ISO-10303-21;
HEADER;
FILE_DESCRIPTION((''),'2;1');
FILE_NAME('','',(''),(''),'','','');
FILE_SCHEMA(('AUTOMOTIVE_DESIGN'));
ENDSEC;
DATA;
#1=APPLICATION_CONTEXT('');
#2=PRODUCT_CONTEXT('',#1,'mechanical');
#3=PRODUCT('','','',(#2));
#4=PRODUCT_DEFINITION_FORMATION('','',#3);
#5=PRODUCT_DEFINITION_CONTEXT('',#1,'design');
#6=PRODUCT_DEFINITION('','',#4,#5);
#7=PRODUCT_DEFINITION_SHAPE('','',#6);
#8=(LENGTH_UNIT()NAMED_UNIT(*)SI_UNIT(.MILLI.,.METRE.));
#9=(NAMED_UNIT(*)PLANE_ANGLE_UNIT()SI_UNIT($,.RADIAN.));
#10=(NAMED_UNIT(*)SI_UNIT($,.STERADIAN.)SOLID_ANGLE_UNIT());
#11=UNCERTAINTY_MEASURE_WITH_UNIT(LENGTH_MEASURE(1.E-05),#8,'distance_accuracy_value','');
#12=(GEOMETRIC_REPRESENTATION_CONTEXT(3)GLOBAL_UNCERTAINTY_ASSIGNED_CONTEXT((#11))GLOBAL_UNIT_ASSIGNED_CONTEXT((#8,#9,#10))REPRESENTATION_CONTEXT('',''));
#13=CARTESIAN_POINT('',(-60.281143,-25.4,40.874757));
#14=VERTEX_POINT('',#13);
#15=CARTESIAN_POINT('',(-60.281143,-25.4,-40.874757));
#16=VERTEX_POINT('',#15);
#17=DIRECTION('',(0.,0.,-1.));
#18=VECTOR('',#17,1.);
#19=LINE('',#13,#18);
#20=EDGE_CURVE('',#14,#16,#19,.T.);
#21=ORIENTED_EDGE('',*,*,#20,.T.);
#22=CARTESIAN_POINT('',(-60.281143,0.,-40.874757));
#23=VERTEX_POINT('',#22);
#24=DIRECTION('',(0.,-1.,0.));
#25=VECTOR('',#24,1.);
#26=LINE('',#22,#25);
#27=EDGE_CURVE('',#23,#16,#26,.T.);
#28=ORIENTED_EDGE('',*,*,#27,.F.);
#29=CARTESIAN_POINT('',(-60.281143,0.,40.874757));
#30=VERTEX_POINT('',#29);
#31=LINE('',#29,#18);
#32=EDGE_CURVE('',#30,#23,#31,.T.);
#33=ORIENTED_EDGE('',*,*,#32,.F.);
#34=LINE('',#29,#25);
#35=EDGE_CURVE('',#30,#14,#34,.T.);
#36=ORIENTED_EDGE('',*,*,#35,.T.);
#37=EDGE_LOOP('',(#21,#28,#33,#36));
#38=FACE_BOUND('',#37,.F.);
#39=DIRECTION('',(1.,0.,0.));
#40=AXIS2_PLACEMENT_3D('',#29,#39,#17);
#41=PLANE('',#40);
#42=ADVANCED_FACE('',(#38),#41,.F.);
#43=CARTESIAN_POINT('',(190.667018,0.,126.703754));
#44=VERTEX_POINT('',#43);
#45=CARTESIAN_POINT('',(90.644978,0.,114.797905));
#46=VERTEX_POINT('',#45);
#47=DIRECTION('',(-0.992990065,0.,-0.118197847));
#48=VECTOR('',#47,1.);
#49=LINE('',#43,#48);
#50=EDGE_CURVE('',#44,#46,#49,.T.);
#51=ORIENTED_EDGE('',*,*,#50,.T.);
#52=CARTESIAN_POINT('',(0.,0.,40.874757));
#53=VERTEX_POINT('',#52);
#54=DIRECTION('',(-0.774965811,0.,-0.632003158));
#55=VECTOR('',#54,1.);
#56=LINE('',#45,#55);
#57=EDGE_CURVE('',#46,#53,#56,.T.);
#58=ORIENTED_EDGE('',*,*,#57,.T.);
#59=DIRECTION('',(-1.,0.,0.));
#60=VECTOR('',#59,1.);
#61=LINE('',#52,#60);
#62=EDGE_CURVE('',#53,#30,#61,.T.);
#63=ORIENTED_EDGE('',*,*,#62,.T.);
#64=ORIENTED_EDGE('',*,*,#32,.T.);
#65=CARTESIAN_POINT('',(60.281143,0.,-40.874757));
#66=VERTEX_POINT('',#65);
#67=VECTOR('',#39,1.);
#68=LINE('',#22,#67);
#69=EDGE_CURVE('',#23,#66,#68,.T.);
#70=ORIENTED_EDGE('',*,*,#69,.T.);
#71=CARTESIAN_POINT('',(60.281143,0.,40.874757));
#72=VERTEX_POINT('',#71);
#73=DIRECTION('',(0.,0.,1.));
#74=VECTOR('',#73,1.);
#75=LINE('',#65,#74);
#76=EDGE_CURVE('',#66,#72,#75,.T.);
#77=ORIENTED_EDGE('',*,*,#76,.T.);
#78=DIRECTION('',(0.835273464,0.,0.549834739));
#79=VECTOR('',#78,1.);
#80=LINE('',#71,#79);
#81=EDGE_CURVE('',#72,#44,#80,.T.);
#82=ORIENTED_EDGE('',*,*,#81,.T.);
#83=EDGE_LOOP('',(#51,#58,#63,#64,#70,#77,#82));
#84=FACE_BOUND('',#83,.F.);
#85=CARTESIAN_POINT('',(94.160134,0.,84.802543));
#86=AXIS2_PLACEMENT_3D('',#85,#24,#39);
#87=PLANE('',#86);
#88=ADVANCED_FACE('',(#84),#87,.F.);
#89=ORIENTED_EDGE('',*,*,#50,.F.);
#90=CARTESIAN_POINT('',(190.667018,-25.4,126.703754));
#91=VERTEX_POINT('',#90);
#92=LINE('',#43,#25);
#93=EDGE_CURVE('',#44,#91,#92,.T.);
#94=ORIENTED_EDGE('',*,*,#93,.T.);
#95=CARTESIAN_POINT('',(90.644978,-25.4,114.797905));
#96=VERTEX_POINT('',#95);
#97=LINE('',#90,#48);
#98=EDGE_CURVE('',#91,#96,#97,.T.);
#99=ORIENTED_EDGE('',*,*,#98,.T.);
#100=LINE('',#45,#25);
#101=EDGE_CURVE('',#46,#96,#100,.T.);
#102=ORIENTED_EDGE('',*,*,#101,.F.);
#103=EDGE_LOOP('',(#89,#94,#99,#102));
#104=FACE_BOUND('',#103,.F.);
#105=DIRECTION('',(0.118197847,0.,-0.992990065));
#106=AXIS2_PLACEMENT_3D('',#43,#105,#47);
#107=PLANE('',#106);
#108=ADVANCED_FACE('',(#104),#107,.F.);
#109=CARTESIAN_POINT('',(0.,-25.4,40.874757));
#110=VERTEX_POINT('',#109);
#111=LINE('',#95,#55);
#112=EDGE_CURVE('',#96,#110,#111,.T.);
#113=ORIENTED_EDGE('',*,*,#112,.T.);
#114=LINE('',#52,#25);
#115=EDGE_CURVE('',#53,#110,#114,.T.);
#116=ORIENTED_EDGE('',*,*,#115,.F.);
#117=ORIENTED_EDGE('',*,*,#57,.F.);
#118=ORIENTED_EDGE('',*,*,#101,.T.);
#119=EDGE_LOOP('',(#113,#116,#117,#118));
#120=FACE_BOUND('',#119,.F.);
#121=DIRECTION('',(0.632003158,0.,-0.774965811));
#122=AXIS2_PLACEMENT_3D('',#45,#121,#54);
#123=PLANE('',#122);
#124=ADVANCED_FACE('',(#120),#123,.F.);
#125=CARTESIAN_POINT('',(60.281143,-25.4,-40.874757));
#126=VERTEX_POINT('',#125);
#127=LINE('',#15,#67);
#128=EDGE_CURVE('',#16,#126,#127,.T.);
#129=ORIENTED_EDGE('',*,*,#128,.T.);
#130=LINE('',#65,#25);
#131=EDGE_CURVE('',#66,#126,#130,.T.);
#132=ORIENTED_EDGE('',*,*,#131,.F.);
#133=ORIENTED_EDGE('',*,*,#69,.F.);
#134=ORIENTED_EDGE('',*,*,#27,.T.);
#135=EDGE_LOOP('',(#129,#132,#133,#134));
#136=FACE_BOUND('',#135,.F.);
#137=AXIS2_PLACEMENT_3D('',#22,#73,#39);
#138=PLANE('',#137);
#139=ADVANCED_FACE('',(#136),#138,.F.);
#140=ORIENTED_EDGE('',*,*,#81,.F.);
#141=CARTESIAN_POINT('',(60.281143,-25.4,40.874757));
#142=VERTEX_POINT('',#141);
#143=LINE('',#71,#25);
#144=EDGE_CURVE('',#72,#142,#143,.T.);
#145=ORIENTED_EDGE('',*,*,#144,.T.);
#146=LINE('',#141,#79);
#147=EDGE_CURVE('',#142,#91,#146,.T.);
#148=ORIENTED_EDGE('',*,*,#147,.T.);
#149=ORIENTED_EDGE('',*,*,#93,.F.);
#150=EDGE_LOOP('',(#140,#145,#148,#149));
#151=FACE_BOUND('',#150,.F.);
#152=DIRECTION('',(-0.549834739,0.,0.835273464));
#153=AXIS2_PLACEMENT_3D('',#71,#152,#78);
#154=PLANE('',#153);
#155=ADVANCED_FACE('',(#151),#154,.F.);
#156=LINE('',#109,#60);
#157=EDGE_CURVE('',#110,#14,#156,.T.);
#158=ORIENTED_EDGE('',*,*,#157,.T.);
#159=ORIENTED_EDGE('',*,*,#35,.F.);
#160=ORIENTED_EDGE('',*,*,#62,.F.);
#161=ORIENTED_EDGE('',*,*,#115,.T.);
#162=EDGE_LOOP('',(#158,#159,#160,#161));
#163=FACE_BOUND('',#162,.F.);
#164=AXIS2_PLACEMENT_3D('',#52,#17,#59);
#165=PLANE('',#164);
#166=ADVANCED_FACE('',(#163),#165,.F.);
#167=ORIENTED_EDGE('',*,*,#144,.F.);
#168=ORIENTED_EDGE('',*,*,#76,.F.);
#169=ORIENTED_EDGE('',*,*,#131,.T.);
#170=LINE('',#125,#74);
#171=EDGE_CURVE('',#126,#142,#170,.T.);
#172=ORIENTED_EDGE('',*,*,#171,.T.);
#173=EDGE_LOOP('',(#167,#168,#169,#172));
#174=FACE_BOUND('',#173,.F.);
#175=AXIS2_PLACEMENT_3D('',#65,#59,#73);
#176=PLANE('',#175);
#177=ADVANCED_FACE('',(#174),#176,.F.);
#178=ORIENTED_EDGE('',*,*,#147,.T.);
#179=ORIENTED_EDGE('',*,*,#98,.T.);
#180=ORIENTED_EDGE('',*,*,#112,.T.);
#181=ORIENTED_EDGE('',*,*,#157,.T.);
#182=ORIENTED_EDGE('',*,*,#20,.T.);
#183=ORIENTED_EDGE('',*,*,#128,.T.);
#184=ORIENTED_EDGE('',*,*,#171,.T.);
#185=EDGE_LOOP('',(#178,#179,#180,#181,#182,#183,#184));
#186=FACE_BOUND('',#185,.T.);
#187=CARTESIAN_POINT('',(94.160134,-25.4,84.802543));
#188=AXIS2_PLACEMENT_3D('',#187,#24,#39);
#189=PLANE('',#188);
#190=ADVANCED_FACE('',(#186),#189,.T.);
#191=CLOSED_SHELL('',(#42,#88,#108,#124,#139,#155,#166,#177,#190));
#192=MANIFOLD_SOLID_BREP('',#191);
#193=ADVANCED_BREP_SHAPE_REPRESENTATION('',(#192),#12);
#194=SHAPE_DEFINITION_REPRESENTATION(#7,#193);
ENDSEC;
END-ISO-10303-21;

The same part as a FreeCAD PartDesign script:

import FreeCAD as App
import Part
import Sketcher
from FreeCAD import Vector
Q = App.Units.Quantity

doc = App.newDocument("Part")
body = doc.addObject("PartDesign::Body", "Body")

# Sketch on XZ plane
sketch1 = doc.addObject("Sketcher::SketchObject", "Sketch")
body.addObject(sketch1)
sketch1.AttachmentSupport = (doc.XZ_Plane, [""])
sketch1.MapMode = "FlatFace"
sketch1.addGeometry(Part.LineSegment(Vector(60.281143, 40.874757, 0), Vector(190.667018, 126.703754, 0)), False)
sketch1.addGeometry(Part.LineSegment(Vector(190.667018, 126.703754, 0), Vector(90.644978, 114.797905, 0)), False)
sketch1.addGeometry(Part.LineSegment(Vector(90.644978, 114.797905, 0), Vector(0, 40.874757, 0)), False)
sketch1.addGeometry(Part.LineSegment(Vector(0, 40.874757, 0), Vector(-60.281143, 40.874757, 0)), False)
sketch1.addGeometry(Part.LineSegment(Vector(-60.281143, 40.874757, 0), Vector(-60.281143, -40.874757, 0)), False)
sketch1.addGeometry(Part.LineSegment(Vector(-60.281143, -40.874757, 0), Vector(60.281143, -40.874757, 0)), False)
sketch1.addGeometry(Part.LineSegment(Vector(60.281143, -40.874757, 0), Vector(60.281143, 40.874757, 0)), False)
sketch1.addConstraint(Sketcher.Constraint("Coincident", 0, 2, 1, 1))
sketch1.addConstraint(Sketcher.Constraint("Coincident", 1, 2, 2, 1))
sketch1.addConstraint(Sketcher.Constraint("Coincident", 2, 2, 3, 1))
sketch1.addConstraint(Sketcher.Constraint("Coincident", 3, 2, 4, 1))
sketch1.addConstraint(Sketcher.Constraint("Coincident", 4, 2, 5, 1))
sketch1.addConstraint(Sketcher.Constraint("Coincident", 5, 2, 6, 1))
sketch1.addConstraint(Sketcher.Constraint("Coincident", 6, 2, 0, 1))
sketch1.addConstraint(Sketcher.Constraint("Horizontal", 3))
sketch1.addConstraint(Sketcher.Constraint("Vertical", 4))
sketch1.addConstraint(Sketcher.Constraint("Horizontal", 5))
sketch1.addConstraint(Sketcher.Constraint("Vertical", 6))
sketch1.addConstraint(Sketcher.Constraint("Symmetric", 3, 2, 5, 2, -1, 1))
sketch1.addConstraint(Sketcher.Constraint("PointOnObject", 2, 2, -2))
sketch1.addConstraint(Sketcher.Constraint("Horizontal", 3, 2, 6, 2))
sketch1.addConstraint(Sketcher.Constraint("DistanceX", -1, 1, 1, 2, Q("3.5686999 in")))
sketch1.addConstraint(Sketcher.Constraint("Distance", 2, 116.966422))
sketch1.addConstraint(Sketcher.Constraint("DistanceX", 3, 2, 3, 1, 60.281143))
sketch1.addConstraint(Sketcher.Constraint("DistanceY", 4, 2, 4, 1, 81.749514))
sketch1.addConstraint(Sketcher.Constraint("DistanceX", -1, 1, 0, 2, 190.667018))
sketch1.addConstraint(Sketcher.Constraint("DistanceY", 1, 2, 0, 2, 11.905849))
pad1 = doc.addObject("PartDesign::Pad", "Pad")
body.addObject(pad1)
pad1.Profile = sketch1
pad1.Length = Q("1 in")

doc.recompute()
